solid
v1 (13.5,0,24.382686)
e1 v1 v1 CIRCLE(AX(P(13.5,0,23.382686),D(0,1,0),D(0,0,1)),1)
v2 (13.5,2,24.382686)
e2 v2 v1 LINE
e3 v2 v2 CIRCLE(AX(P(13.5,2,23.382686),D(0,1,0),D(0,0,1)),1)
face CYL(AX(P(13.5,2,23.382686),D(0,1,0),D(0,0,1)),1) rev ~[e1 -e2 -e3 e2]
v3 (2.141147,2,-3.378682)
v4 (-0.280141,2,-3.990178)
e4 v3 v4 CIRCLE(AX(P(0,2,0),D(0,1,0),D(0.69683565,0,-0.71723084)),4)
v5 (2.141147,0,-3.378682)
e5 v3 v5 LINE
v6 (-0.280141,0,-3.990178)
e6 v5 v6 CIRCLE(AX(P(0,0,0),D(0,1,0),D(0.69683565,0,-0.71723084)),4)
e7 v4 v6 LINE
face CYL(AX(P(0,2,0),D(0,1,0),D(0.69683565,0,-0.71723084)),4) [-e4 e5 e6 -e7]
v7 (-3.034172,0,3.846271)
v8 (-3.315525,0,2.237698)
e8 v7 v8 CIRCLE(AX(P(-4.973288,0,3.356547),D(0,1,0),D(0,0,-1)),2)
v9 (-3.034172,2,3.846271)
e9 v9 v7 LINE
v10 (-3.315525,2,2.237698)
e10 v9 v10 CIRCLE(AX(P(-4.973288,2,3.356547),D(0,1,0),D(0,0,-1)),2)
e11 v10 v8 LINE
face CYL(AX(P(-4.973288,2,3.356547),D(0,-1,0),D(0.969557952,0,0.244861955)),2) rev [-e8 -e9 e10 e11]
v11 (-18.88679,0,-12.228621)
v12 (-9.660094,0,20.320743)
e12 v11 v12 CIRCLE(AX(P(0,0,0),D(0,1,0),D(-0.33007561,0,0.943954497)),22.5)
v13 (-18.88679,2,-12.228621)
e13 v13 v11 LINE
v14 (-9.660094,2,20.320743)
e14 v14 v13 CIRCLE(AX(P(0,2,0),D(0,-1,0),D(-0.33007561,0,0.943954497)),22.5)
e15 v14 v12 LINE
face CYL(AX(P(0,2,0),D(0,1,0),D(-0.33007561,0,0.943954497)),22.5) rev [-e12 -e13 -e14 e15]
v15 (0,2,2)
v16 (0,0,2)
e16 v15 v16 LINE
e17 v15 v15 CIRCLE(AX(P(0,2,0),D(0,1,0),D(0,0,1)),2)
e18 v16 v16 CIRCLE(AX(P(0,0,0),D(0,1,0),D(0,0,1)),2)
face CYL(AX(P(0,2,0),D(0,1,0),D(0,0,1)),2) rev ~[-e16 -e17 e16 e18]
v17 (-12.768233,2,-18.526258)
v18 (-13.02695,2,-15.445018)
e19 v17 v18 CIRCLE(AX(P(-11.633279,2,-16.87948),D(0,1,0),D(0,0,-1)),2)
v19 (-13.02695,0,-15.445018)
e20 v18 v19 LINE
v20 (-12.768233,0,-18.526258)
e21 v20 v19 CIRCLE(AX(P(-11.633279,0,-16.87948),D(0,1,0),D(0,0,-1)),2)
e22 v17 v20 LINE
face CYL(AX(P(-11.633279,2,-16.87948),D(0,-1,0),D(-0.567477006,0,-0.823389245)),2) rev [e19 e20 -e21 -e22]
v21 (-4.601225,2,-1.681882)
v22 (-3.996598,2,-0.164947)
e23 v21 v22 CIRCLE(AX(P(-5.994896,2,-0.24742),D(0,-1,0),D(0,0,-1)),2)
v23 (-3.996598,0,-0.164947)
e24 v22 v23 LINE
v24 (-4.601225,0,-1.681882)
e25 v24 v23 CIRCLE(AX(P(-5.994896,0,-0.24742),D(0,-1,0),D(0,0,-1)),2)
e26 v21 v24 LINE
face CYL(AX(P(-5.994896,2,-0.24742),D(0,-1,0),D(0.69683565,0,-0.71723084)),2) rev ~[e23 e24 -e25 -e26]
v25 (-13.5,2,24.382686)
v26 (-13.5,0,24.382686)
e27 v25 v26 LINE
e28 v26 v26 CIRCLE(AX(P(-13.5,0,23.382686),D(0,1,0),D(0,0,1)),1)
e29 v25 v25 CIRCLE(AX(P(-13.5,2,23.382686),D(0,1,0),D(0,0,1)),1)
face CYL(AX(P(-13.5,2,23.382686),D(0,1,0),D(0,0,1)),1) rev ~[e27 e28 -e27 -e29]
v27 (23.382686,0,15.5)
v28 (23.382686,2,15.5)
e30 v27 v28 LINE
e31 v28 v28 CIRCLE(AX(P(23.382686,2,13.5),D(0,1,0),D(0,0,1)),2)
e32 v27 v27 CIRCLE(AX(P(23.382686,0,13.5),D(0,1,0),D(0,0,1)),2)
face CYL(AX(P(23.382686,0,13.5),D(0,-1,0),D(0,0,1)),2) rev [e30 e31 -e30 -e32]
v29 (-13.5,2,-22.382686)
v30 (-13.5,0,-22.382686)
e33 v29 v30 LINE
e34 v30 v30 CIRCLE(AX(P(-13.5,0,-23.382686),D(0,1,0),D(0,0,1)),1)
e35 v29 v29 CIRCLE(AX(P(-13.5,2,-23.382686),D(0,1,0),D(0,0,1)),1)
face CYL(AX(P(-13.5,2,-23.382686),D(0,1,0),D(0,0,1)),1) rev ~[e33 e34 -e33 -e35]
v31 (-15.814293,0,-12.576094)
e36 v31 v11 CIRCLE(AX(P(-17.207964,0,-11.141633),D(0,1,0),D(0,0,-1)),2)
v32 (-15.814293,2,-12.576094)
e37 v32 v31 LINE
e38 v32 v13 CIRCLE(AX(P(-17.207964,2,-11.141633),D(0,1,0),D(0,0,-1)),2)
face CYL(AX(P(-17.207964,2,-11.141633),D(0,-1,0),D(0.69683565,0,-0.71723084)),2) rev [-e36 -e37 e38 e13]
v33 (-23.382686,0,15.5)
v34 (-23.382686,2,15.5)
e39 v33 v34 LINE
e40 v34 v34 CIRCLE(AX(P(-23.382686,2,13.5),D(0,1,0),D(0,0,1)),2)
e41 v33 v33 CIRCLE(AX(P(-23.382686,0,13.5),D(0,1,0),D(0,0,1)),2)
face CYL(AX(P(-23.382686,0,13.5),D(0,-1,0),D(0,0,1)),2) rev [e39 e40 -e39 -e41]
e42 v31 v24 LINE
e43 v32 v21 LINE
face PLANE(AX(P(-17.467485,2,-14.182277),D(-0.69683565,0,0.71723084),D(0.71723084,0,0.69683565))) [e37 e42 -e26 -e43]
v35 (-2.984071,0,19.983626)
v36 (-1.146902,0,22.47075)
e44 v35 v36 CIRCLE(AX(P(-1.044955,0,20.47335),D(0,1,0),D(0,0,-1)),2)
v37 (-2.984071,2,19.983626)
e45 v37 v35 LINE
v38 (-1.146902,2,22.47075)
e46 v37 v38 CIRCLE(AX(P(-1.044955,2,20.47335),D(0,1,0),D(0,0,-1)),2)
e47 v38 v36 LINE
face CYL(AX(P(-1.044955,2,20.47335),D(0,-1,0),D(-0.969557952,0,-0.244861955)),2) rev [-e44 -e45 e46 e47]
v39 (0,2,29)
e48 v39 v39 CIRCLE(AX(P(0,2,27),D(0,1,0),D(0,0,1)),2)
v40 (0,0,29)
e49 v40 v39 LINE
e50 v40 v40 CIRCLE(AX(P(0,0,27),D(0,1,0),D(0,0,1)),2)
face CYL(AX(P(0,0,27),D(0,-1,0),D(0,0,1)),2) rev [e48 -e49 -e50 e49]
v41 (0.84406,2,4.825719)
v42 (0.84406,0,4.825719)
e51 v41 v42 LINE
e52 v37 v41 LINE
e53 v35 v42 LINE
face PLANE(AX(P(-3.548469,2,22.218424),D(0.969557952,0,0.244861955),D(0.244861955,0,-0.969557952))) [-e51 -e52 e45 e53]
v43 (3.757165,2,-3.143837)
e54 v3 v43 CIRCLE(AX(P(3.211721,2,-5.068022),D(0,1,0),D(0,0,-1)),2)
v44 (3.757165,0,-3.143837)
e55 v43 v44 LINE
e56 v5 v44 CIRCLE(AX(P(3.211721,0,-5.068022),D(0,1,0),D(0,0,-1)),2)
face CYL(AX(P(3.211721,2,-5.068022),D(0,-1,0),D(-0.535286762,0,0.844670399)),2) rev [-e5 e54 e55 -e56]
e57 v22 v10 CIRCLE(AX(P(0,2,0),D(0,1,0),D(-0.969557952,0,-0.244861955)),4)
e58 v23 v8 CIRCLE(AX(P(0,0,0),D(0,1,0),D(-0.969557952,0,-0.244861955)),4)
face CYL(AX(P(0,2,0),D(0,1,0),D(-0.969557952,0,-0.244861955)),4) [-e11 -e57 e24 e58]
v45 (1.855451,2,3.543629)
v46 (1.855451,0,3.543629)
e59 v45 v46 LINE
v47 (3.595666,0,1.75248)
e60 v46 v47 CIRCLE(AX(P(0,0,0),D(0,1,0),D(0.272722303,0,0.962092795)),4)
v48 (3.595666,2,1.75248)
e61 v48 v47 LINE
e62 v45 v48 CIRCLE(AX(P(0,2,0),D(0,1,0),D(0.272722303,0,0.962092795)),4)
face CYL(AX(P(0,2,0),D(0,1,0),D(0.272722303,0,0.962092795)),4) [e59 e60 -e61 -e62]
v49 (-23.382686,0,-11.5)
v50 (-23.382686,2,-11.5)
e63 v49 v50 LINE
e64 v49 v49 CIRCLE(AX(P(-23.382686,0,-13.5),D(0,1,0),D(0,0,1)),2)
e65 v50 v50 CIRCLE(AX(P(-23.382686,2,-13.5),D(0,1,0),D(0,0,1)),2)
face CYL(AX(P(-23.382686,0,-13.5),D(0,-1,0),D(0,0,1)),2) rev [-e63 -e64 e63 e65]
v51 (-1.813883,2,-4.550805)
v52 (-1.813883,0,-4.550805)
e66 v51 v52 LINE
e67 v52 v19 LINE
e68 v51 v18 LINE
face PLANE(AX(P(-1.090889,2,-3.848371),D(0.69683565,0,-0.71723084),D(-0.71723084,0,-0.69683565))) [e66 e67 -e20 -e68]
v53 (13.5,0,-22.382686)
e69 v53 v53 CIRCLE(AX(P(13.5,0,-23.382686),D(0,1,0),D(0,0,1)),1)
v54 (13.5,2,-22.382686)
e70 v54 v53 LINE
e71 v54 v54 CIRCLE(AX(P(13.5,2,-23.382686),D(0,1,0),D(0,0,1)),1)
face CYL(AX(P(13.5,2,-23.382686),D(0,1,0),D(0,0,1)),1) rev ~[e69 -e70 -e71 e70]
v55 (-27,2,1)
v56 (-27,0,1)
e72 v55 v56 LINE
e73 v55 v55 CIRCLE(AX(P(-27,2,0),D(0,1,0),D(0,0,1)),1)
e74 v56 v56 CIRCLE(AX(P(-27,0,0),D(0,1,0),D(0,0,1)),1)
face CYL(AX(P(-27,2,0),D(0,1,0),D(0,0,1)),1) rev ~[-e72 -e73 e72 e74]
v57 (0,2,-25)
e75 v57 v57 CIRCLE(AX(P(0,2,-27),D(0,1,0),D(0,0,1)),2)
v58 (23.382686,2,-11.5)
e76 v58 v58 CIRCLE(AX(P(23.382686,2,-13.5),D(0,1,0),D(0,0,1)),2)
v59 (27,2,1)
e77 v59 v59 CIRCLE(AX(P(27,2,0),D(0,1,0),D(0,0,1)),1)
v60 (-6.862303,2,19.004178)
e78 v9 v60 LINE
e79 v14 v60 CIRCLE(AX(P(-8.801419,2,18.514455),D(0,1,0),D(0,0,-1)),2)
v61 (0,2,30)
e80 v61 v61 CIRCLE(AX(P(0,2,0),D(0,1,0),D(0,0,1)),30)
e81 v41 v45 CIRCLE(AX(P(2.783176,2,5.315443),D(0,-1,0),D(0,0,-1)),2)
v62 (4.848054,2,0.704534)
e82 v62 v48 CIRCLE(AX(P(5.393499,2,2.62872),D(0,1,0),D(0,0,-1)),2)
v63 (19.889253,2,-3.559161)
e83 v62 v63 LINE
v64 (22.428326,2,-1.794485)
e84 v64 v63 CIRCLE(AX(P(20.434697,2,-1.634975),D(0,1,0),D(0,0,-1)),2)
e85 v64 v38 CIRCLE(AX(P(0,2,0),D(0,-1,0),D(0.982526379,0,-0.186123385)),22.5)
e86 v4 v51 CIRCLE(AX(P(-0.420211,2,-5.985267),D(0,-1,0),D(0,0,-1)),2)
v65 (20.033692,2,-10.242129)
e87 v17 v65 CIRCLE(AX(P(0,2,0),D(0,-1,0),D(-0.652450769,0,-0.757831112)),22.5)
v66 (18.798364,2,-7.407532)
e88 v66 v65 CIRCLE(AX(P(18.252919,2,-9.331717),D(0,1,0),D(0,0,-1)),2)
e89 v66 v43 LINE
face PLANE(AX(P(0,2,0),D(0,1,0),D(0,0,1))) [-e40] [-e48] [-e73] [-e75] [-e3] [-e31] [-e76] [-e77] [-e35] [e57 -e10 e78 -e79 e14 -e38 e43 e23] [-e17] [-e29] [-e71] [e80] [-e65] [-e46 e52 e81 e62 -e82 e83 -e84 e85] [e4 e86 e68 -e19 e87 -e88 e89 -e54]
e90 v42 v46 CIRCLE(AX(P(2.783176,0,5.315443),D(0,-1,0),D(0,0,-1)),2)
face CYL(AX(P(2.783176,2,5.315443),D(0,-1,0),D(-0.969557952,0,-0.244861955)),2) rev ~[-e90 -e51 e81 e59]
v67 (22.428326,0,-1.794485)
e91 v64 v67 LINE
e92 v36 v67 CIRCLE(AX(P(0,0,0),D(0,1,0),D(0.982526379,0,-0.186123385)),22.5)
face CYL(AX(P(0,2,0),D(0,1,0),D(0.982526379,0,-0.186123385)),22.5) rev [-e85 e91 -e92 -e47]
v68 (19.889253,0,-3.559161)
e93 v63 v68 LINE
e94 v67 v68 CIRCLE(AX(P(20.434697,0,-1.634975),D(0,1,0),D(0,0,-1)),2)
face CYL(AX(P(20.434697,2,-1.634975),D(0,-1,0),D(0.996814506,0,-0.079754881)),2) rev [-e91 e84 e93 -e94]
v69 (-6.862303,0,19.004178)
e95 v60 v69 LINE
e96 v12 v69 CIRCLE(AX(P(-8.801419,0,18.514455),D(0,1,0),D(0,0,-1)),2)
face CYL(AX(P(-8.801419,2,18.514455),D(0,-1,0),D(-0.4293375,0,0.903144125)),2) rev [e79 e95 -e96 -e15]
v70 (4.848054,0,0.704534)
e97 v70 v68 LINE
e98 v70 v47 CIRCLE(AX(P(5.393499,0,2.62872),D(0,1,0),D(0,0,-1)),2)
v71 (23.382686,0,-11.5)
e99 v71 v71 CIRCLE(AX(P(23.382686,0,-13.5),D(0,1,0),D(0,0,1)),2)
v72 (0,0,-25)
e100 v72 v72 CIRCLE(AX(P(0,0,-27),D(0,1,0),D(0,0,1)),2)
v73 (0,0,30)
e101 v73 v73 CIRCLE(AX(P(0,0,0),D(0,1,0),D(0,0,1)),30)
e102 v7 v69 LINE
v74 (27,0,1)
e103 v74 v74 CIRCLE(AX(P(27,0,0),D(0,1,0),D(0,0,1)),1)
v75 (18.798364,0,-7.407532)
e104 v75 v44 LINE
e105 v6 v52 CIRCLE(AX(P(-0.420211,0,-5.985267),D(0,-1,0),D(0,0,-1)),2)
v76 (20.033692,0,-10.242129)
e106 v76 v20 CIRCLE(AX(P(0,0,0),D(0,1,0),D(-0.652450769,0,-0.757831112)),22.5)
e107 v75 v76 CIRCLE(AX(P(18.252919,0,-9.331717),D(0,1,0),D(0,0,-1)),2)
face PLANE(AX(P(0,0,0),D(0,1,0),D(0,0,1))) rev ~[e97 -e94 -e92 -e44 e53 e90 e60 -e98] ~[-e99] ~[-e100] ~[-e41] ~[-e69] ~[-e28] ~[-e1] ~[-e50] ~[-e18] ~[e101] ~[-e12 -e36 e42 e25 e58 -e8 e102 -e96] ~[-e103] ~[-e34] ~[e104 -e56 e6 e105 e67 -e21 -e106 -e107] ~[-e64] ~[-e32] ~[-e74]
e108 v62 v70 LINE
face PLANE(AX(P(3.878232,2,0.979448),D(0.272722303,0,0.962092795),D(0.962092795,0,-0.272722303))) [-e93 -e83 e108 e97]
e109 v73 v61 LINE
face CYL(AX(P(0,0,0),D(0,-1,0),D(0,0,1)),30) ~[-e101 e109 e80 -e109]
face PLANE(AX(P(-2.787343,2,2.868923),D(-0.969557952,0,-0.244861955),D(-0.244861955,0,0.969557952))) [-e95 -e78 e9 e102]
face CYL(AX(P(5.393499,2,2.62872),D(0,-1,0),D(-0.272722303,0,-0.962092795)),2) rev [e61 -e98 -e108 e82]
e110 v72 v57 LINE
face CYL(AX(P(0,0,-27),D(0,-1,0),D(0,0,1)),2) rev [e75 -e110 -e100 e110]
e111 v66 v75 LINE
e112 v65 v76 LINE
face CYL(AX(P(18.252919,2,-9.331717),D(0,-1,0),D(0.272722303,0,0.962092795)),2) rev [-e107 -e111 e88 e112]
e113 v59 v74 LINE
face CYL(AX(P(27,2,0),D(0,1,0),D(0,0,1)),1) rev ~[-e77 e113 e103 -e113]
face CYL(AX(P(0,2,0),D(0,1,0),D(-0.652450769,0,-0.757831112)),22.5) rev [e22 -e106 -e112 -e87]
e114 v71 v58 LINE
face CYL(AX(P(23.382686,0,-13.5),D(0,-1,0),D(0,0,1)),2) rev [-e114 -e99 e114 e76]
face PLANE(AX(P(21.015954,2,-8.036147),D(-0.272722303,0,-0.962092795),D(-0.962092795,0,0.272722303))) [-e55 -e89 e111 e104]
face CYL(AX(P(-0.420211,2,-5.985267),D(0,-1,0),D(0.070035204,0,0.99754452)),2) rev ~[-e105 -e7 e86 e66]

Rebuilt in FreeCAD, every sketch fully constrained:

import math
import FreeCAD as App
import Part
import Sketcher


def edges_at(feature, points):
    """Names of the edges that pass closest to the given points."""
    edges = feature.Shape.Edges
    near = lambda p: min(range(len(edges)), key=lambda i: edges[i].distToShape(Part.Vertex(*p))[0])
    return sorted({f"Edge{near(p) + 1}" for p in points})

doc = App.newDocument("Part")
body = doc.addObject("PartDesign::Body", "Body")

sketch1 = doc.addObject("Sketcher::SketchObject", "Sketch")
body.addObject(sketch1)
sketch1.AttachmentSupport = (doc.XZ_Plane, [""])
sketch1.MapMode = "FlatFace"
sketch1.addGeometry([
    Part.Circle(App.Vector(0, 0, 0), App.Vector(0, 0, 1), 30),
    Part.Circle(App.Vector(-23.4, -13.5, 0), App.Vector(0, 0, 1), 2),
    Part.Circle(App.Vector(0, -27, 0), App.Vector(0, 0, 1), 2),
    Part.Circle(App.Vector(-23.4, 13.5, 0), App.Vector(0, 0, 1), 2),
    Part.Circle(App.Vector(23.4, -13.5, 0), App.Vector(0, 0, 1), 2),
    Part.Circle(App.Vector(0, 27, 0), App.Vector(0, 0, 1), 2),
    Part.Circle(App.Vector(23.4, 13.5, 0), App.Vector(0, 0, 1), 2),
], False)
sketch1.addConstraint([
    Sketcher.Constraint("Coincident", 0, 3, -1, 1),
    Sketcher.Constraint("Equal", 1, 2),
    Sketcher.Constraint("Equal", 2, 3),
    Sketcher.Constraint("Equal", 3, 4),
    Sketcher.Constraint("Equal", 4, 5),
    Sketcher.Constraint("Equal", 5, 6),
    Sketcher.Constraint("Symmetric", 3, 3, 4, 3, -1, 1),
    Sketcher.Constraint("Symmetric", 2, 3, 5, 3, -1, 1),
    Sketcher.Constraint("Symmetric", 1, 3, 6, 3, -1, 1),
    Sketcher.Constraint("Symmetric", 1, 3, 4, 3, -2),
    Sketcher.Constraint("PointOnObject", 2, 3, -2),
    Sketcher.Constraint("Diameter", 0, 60.0),
    Sketcher.Constraint("Diameter", 1, 4.0),
    Sketcher.Constraint("DistanceY", 2, 3, -1, 1, 27.0),
    Sketcher.Constraint("DistanceY", 1, 3, 3, 3, 27.0),
    Sketcher.Constraint("DistanceX", 1, 3, 4, 3, 46.765372),
])
pad1 = doc.addObject("PartDesign::Pad", "Pad")
body.addObject(pad1)
pad1.Profile = sketch1
pad1.Length = 2
pad1.Reversed = True

sketch2 = doc.addObject("Sketcher::SketchObject", "Sketch001")
body.addObject(sketch2)
sketch2.AttachmentSupport = (doc.XZ_Plane, [""])
sketch2.MapMode = "FlatFace"
sketch2.AttachmentOffset = App.Placement(App.Vector(0, 0, -2), App.Rotation())
sketch2.addGeometry([
    Part.Circle(App.Vector(-13.5, -23.4, 0), App.Vector(0, 0, 1), 1),
    Part.Circle(App.Vector(13.5, -23.4, 0), App.Vector(0, 0, 1), 1),
    Part.Circle(App.Vector(27, 0, 0), App.Vector(0, 0, 1), 1),
    Part.Circle(App.Vector(13.5, 23.4, 0), App.Vector(0, 0, 1), 1),
    Part.Circle(App.Vector(-13.5, 23.4, 0), App.Vector(0, 0, 1), 1),
    Part.Circle(App.Vector(-27, 0, 0), App.Vector(0, 0, 1), 1),
], False)
sketch2.addConstraint([
    Sketcher.Constraint("Equal", 0, 1),
    Sketcher.Constraint("Equal", 1, 2),
    Sketcher.Constraint("Equal", 2, 3),
    Sketcher.Constraint("Equal", 3, 4),
    Sketcher.Constraint("Equal", 4, 5),
    Sketcher.Constraint("Symmetric", 0, 3, 3, 3, -1, 1),
    Sketcher.Constraint("Symmetric", 1, 3, 4, 3, -1, 1),
    Sketcher.Constraint("Symmetric", 2, 3, 5, 3, -1, 1),
    Sketcher.Constraint("Symmetric", 0, 3, 1, 3, -2),
    Sketcher.Constraint("PointOnObject", 2, 3, -1),
    Sketcher.Constraint("Diameter", 0, 2.0),
    Sketcher.Constraint("DistanceX", -1, 1, 2, 3, 27.0),
    Sketcher.Constraint("DistanceX", 0, 3, 1, 3, 27.0),
    Sketcher.Constraint("DistanceY", 1, 3, 3, 3, 46.765372),
])
pocket1 = doc.addObject("PartDesign::Pocket", "Pocket")
body.addObject(pocket1)
pocket1.Profile = sketch2
pocket1.Length = 3
pocket1.Reversed = True

sketch3 = doc.addObject("Sketcher::SketchObject", "Sketch002")
body.addObject(sketch3)
sketch3.AttachmentSupport = (doc.XZ_Plane, [""])
sketch3.MapMode = "FlatFace"
sketch3.AttachmentOffset = App.Placement(App.Vector(0, 0, -2), App.Rotation())
sketch3.addGeometry([
    Part.Circle(App.Vector(0, 0, 0), App.Vector(0, 0, 1), 2),
    Part.LineSegment(App.Vector(-14.7, -17.1, 0), App.Vector(-1.1, -3.8, 0)),
    Part.ArcOfCircle(Part.Circle(App.Vector(0, 0, 0), App.Vector(0, 0, 1), 4), math.radians(-106), math.radians(-46)),
    Part.LineSegment(App.Vector(2.8, -2.9, 0), App.Vector(21, -8, 0)),
    Part.ArcOfCircle(Part.Circle(App.Vector(0, 0, 0), App.Vector(0, 0, 1), 22.5), math.radians(-131), math.radians(-21)),
], False)
sketch3.addConstraint([
    Sketcher.Constraint("Coincident", 1, 2, 2, 1),
    Sketcher.Constraint("Coincident", 2, 2, 3, 1),
    Sketcher.Constraint("Coincident", 3, 2, 4, 2),
    Sketcher.Constraint("Coincident", 4, 1, 1, 1),
    Sketcher.Constraint("Coincident", 0, 3, -1, 1),
    Sketcher.Constraint("Coincident", 2, 3, -1, 1),
    Sketcher.Constraint("Coincident", 4, 3, -1, 1),
    Sketcher.Constraint("Equal", 1, 3),
    Sketcher.Constraint("Diameter", 0, 4.0),
    Sketcher.Constraint("Radius", 2, 4.0),
    Sketcher.Constraint("Radius", 4, 22.5),
    Sketcher.Constraint("DistanceY", 4, 1, -1, 1, 17.0512),
    Sketcher.Constraint("DistanceX", 1, 2, -1, 1, 1.090889),
    Sketcher.Constraint("DistanceX", 1, 2, 2, 2, 3.878232),
])
pocket2 = doc.addObject("PartDesign::Pocket", "Pocket001")
body.addObject(pocket2)
pocket2.Profile = sketch3
pocket2.Length = 10
pocket2.Reversed = True
doc.recompute()

fillet = doc.addObject("PartDesign::Fillet", "Fillet")
body.addObject(fillet)
fillet.Base = (pocket2, edges_at(pocket2, [
    (2.787, 1, -2.869),
    (-1.091, 1, -3.848),
    (-14.68, 1, -17.051),
    (21.016, 1, -8.036),
]))
fillet.Radius = 2
doc.recompute()

polarpattern = doc.addObject("PartDesign::PolarPattern", "PolarPattern")
body.addObject(polarpattern)
polarpattern.Originals = [pocket2]
polarpattern.Axis = (doc.Y_Axis, [""])
polarpattern.Angle = 360
polarpattern.Occurrences = 3
body.Tip = polarpattern
doc.recompute()

fillet2 = doc.addObject("PartDesign::Fillet", "Fillet001")
body.addObject(fillet2)
fillet2.Base = (polarpattern, edges_at(polarpattern, [
    (-3.878, 1, -0.979),
    (-2.787, 1, 2.869),
    (-7.427, 1, 21.239),
    (-17.467, 1, -14.182),
    (1.091, 1, 3.848),
    (3.878, 1, 0.979),
    (22.107, 1, -4.188),
    (-3.548, 1, 22.218),
]))
fillet2.Radius = 2

doc.recompute()
